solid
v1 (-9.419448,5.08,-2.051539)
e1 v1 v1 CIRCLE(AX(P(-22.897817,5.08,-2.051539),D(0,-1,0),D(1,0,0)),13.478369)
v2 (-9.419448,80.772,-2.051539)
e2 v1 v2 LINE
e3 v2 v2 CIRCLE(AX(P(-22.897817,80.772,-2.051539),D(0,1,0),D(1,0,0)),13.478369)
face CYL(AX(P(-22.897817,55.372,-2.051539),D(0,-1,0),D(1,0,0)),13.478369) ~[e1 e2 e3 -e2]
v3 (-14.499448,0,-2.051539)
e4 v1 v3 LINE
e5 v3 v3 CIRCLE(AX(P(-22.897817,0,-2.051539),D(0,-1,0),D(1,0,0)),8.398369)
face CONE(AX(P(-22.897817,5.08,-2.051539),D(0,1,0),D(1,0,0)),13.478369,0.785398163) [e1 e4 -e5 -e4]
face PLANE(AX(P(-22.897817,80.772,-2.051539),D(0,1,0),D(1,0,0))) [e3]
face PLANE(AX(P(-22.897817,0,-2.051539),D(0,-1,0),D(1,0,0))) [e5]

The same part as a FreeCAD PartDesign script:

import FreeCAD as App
import Part
import Sketcher
from FreeCAD import Vector
Q = App.Units.Quantity


def edges_at(feature, points):
    """Names of the edges that pass closest to the given points."""
    edges = feature.Shape.Edges
    near = lambda p: min(range(len(edges)), key=lambda i: edges[i].distToShape(Part.Vertex(*p))[0])
    return sorted({f"Edge{near(p) + 1}" for p in points})

doc = App.newDocument("Part")
body = doc.addObject("PartDesign::Body", "Body")

# Sketch on XZ plane
sketch1 = body.newObject("Sketcher::SketchObject", "Sketch")
sketch1.AttachmentSupport = (doc.getObject("XZ_Plane"), [""])
sketch1.MapMode = "FlatFace"
sketch1.addGeometry(Part.Circle(Vector(-22.897817, -2.051539, 0), Vector(0, 0, 1), 13.478369), False)
sketch1.addConstraint([
    Sketcher.Constraint("Diameter", 0, 26.956738),
    Sketcher.Constraint("DistanceY", 0, 3, -1, 1, 2.051539),
    Sketcher.Constraint("DistanceX", 0, 3, -1, 1, 22.897817),
])
pad1 = body.newObject("PartDesign::Pad", "Pad")
pad1.Profile = sketch1
pad1.Length = Q("2.18 in")
pad1.Reversed = True
doc.recompute()

chamfer = body.newObject("PartDesign::Chamfer", "Chamfer")
chamfer.Base = (pad1, edges_at(pad1, [(-36.376, 0, -2.052)]))
chamfer.Size = Q("0.2 in")

# Sketch on XZ plane
sketch2 = body.newObject("Sketcher::SketchObject", "Sketch001")
sketch2.AttachmentSupport = (doc.getObject("XZ_Plane"), [""])
sketch2.MapMode = "FlatFace"
sketch2.AttachmentOffset = App.Placement(Vector(0, 0, -2.18 * 25.4), App.Rotation())
sketch2.addGeometry(Part.Circle(Vector(-22.897817, -2.051539, 0), Vector(0, 0, 1), 13.478369), False)
sketch2.addConstraint([
    Sketcher.Constraint("Diameter", 0, 26.956738),
    Sketcher.Constraint("DistanceY", 0, 3, -1, 1, 2.051539),
    Sketcher.Constraint("DistanceX", 0, 3, -1, 1, 22.897817),
])
pad2 = body.newObject("PartDesign::Pad", "Pad001")
pad2.Profile = sketch2
pad2.Length = Q("1 in")
pad2.Reversed = True

doc.recompute()
